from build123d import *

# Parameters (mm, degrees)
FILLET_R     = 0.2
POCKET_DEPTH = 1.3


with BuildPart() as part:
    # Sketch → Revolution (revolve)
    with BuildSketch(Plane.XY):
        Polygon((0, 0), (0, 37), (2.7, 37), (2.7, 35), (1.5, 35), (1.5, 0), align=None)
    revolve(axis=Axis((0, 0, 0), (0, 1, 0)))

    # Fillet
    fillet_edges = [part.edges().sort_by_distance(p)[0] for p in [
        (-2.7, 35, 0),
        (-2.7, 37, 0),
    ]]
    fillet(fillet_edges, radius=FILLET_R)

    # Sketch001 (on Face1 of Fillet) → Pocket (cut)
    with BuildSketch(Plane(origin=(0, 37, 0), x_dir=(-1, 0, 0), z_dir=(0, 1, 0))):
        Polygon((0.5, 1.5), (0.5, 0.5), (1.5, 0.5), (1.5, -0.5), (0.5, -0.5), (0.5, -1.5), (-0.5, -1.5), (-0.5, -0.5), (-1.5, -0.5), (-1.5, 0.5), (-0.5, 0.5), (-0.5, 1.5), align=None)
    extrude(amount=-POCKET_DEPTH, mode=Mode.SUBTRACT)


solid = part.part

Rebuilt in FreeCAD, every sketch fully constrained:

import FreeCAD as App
import Part
import Sketcher
from FreeCAD import Vector
Q = App.Units.Quantity


def edges_at(feature, points):
    """Names of the edges that pass closest to the given points."""
    edges = feature.Shape.Edges
    near = lambda p: min(range(len(edges)), key=lambda i: edges[i].distToShape(Part.Vertex(*p))[0])
    return sorted({f"Edge{near(p) + 1}" for p in points})


def add_polygon(sketch, points):
    """Adds a closed chain of lines whose ends are joined by coincident constraints."""
    first, n = sketch.GeometryCount, len(points)
    for a, b in zip(points, points[1:] + points[:1]):
        sketch.addGeometry(Part.LineSegment(App.Vector(*a, 0), App.Vector(*b, 0)), False)
    for i in range(n):
        sketch.addConstraint(Sketcher.Constraint("Coincident", first + i, 2, first + (i + 1) % n, 1))

doc = App.newDocument("Part")
body = doc.addObject("PartDesign::Body", "Body")

sketch1 = body.newObject("Sketcher::SketchObject", "Sketch")
sketch1.AttachmentSupport = (doc.getObject("XY_Plane"), [""])
sketch1.MapMode = "FlatFace"
add_polygon(sketch1, [(0, 37), (0, 0), (1.5, 0), (1.5, 35), (2.7, 35), (2.7, 37)])
sketch1.addConstraint(Sketcher.Constraint("Vertical", 0))
sketch1.addConstraint(Sketcher.Constraint("Horizontal", 1))
sketch1.addConstraint(Sketcher.Constraint("Vertical", 2))
sketch1.addConstraint(Sketcher.Constraint("Horizontal", 3))
sketch1.addConstraint(Sketcher.Constraint("Vertical", 4))
sketch1.addConstraint(Sketcher.Constraint("Horizontal", 5))
sketch1.addConstraint(Sketcher.Constraint("Coincident", 0, 2, -1, 1))
sketch1.addConstraint(Sketcher.Constraint("DistanceY", 0, 2, 0, 1, Q("37 mm")))
sketch1.addConstraint(Sketcher.Constraint("DistanceY", 2, 1, 2, 2, Q("35 mm")))
sketch1.addConstraint(Sketcher.Constraint("DistanceX", 1, 1, 1, 2, Q("1.5 mm")))
sketch1.addConstraint(Sketcher.Constraint("DistanceX", 3, 1, 3, 2, Q("1.2 mm")))
revolution = body.newObject("PartDesign::Revolution", "Revolution")
revolution.Profile = sketch1
revolution.ReferenceAxis = (sketch1, ["V_Axis"])
revolution.Angle = 360
doc.recompute()

fillet = body.newObject("PartDesign::Fillet", "Fillet")
fillet.Base = (revolution, edges_at(revolution, [(-2.7, 35, 0), (-2.7, 37, 0)]))
fillet.Radius = 0.2

sketch2 = body.newObject("Sketcher::SketchObject", "Sketch001")
sketch2.AttachmentSupport = (doc.getObject("XZ_Plane"), [""])
sketch2.MapMode = "FlatFace"
sketch2.AttachmentOffset = App.Placement(Vector(0, 0, -37), App.Rotation())
add_polygon(sketch2, [(-0.5, 0.5), (-0.5, 1.5), (0.5, 1.5), (0.5, 0.5), (1.5, 0.5), (1.5, -0.5), (0.5, -0.5), (0.5, -1.5), (-0.5, -1.5), (-0.5, -0.5), (-1.5, -0.5), (-1.5, 0.5)])
sketch2.addConstraint(Sketcher.Constraint("Vertical", 0))
sketch2.addConstraint(Sketcher.Constraint("Horizontal", 1))
sketch2.addConstraint(Sketcher.Constraint("Vertical", 2))
sketch2.addConstraint(Sketcher.Constraint("Horizontal", 3))
sketch2.addConstraint(Sketcher.Constraint("Vertical", 4))
sketch2.addConstraint(Sketcher.Constraint("Horizontal", 5))
sketch2.addConstraint(Sketcher.Constraint("Vertical", 6))
sketch2.addConstraint(Sketcher.Constraint("Horizontal", 7))
sketch2.addConstraint(Sketcher.Constraint("Vertical", 8))
sketch2.addConstraint(Sketcher.Constraint("Horizontal", 9))
sketch2.addConstraint(Sketcher.Constraint("Vertical", 10))
sketch2.addConstraint(Sketcher.Constraint("Horizontal", 11))
sketch2.addConstraint(Sketcher.Constraint("Symmetric", 0, 2, 6, 2, -1, 1))
sketch2.addConstraint(Sketcher.Constraint("Symmetric", 2, 2, 8, 2, -1, 1))
sketch2.addConstraint(Sketcher.Constraint("Symmetric", 4, 2, 10, 2, -1, 1))
sketch2.addConstraint(Sketcher.Constraint("Symmetric", 5, 2, 8, 2, -2))
sketch2.addConstraint(Sketcher.Constraint("Equal", 1, 3))
sketch2.addConstraint(Sketcher.Constraint("Equal", 11, 0))
sketch2.addConstraint(Sketcher.Constraint("Equal", 2, 4))
sketch2.addConstraint(Sketcher.Constraint("DistanceX", 1, 1, 1, 2, Q("1 mm")))
pocket1 = body.newObject("PartDesign::Pocket", "Pocket")
pocket1.Profile = sketch2
pocket1.Length = 1.3
pocket1.Reversed = True

doc.recompute()
